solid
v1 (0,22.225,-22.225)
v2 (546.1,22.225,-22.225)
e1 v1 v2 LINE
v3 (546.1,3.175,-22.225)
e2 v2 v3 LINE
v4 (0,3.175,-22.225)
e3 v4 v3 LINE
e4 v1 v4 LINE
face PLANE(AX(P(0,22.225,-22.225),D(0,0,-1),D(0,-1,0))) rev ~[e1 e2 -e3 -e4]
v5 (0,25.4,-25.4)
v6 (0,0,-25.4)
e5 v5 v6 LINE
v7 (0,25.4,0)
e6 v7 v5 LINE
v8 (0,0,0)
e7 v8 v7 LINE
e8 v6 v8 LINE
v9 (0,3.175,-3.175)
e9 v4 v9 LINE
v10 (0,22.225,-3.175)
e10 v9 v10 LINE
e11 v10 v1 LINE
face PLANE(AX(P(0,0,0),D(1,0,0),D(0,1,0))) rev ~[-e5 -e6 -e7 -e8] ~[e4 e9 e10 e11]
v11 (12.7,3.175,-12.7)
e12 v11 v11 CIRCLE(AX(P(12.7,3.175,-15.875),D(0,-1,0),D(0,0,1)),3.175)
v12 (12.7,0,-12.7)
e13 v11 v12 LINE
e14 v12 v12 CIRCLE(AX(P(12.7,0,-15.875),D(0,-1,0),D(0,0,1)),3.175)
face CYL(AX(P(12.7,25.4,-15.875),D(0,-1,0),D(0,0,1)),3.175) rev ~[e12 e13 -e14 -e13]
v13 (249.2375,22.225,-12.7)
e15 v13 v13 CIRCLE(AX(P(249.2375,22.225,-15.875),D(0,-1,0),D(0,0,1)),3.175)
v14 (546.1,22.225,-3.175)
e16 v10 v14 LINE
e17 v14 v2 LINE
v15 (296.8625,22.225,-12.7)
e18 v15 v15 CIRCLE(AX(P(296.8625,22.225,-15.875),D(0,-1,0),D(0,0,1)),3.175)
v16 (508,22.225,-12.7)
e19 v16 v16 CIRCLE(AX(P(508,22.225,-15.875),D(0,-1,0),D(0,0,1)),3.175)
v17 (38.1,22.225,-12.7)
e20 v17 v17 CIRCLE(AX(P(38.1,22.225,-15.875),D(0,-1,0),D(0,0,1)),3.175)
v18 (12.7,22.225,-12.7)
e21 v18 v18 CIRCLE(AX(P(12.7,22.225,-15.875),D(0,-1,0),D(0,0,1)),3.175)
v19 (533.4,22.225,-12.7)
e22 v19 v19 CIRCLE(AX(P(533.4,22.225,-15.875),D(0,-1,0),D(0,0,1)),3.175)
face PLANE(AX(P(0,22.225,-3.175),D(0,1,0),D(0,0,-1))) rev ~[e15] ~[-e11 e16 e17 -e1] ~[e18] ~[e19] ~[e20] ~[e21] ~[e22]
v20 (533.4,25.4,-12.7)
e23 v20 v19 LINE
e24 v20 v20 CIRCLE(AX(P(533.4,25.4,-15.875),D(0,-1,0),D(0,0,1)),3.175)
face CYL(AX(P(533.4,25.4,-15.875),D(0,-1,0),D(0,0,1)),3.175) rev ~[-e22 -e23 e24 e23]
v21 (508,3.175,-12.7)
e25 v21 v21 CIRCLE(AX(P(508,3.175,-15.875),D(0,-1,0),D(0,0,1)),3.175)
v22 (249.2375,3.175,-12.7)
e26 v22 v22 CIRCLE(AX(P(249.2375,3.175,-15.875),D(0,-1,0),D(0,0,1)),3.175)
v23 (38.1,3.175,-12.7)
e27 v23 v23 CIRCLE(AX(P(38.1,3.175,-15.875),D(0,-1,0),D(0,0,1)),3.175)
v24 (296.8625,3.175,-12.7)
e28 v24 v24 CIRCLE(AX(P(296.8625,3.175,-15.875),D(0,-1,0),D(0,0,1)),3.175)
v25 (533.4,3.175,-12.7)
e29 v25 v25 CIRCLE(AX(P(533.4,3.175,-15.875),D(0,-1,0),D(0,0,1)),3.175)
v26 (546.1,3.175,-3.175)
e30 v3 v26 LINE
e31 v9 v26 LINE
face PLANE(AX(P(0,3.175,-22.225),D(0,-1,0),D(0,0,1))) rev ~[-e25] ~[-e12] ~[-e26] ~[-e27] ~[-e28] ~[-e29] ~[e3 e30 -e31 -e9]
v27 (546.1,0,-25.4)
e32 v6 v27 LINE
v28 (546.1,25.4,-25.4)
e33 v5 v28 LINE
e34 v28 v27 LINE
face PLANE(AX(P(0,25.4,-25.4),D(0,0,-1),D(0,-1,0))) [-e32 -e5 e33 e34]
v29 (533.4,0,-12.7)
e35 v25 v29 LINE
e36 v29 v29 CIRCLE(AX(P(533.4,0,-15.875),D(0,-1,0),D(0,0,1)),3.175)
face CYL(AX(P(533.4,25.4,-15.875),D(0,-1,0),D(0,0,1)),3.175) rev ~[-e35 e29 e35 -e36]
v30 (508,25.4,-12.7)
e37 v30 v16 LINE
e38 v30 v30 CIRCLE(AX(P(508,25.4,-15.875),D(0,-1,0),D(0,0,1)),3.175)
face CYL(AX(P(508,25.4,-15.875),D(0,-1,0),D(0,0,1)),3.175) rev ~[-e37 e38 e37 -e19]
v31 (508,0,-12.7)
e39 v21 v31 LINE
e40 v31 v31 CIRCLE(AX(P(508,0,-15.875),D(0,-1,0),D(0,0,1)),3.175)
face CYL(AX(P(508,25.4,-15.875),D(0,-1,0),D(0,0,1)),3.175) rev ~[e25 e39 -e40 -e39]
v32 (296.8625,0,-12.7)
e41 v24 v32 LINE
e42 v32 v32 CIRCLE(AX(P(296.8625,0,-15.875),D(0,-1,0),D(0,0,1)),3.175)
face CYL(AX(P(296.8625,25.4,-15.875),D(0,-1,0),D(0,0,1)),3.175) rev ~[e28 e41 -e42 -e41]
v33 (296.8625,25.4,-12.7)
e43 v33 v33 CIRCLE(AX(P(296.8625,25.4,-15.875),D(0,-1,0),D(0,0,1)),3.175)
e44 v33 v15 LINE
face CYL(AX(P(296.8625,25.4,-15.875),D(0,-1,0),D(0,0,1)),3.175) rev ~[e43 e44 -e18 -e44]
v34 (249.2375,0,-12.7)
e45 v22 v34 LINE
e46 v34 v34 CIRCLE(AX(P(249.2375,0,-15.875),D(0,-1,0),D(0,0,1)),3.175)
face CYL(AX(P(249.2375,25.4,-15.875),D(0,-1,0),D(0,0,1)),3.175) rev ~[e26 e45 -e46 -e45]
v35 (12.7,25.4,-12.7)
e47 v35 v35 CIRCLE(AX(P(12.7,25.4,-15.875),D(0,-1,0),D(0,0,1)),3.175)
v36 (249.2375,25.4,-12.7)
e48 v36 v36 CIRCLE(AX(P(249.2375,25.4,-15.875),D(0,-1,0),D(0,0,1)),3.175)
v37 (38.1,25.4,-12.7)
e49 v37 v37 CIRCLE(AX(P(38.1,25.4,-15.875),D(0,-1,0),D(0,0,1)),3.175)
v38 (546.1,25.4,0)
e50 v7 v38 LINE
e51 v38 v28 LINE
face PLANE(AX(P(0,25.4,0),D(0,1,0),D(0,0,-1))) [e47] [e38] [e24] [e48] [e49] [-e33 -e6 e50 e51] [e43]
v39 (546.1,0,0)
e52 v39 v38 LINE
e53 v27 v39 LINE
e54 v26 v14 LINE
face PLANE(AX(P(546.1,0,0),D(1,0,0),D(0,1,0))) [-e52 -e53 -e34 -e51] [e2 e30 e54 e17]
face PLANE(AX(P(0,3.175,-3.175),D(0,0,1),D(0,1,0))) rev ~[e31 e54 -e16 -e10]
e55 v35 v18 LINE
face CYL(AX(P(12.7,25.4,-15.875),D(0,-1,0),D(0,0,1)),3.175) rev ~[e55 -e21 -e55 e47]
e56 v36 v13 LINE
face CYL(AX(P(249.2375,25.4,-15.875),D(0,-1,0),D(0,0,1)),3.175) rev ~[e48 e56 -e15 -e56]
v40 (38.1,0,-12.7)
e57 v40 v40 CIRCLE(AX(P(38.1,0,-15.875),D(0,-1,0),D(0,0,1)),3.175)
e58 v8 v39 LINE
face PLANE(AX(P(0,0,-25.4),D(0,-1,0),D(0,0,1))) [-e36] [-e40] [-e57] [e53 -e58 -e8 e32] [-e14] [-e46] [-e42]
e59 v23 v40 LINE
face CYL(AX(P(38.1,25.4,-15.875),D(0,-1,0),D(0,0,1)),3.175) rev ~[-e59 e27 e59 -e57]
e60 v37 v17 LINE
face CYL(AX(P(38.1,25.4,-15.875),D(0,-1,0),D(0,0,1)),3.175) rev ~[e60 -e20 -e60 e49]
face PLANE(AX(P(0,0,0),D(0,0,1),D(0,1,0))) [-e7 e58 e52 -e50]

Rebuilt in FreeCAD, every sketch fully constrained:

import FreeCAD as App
import Part
import Sketcher
from FreeCAD import Vector
Q = App.Units.Quantity


def add_polygon(sketch, points):
    """Adds a closed chain of lines whose ends are joined by coincident constraints."""
    first, n = sketch.GeometryCount, len(points)
    for a, b in zip(points, points[1:] + points[:1]):
        sketch.addGeometry(Part.LineSegment(App.Vector(*a, 0), App.Vector(*b, 0)), False)
    for i in range(n):
        sketch.addConstraint(Sketcher.Constraint("Coincident", first + i, 2, first + (i + 1) % n, 1))

doc = App.newDocument("Part")
body = doc.addObject("PartDesign::Body", "Body")

# Sketch on YZ plane
sketch1 = body.newObject("Sketcher::SketchObject", "Sketch")
sketch1.AttachmentSupport = (doc.getObject("YZ_Plane"), [""])
sketch1.MapMode = "FlatFace"
add_polygon(sketch1, [(25, 0), (0, 0), (0, -25), (25, -25)])  # lines 0-3
add_polygon(sketch1, [(3, -22), (3, -3), (22, -3), (22, -22)])  # lines 4-7
sketch1.addConstraint([
    Sketcher.Constraint("Horizontal", 0),
    Sketcher.Constraint("Vertical", 1),
    Sketcher.Constraint("Horizontal", 2),
    Sketcher.Constraint("Vertical", 3),
    Sketcher.Constraint("Vertical", 4),
    Sketcher.Constraint("Horizontal", 5),
    Sketcher.Constraint("Vertical", 6),
    Sketcher.Constraint("Horizontal", 7),
    Sketcher.Constraint("Coincident", 0, 2, -1, 1),
    Sketcher.Constraint("Equal", 2, 1),
    Sketcher.Constraint("Equal", 7, 4),
    Sketcher.Constraint("DistanceX", 0, 2, 0, 1, Q("1 in")),
    Sketcher.Constraint("DistanceX", 5, 1, 5, 2, Q("0.75 in")),
    Sketcher.Constraint("DistanceX", -1, 1, 4, 2, Q("0.125 in")),
    Sketcher.Constraint("DistanceY", 4, 2, -1, 1, Q("0.125 in")),
])
pad1 = body.newObject("PartDesign::Pad", "Pad")
pad1.Profile = sketch1
pad1.Length = Q("21.5 in")

# Sketch on XZ plane
sketch2 = body.newObject("Sketcher::SketchObject", "Sketch001")
sketch2.AttachmentSupport = (doc.getObject("XZ_Plane"), [""])
sketch2.MapMode = "FlatFace"
sketch2.AttachmentOffset = App.Placement(Vector(0, 0, -1 * 25.4), App.Rotation())
sketch2.addGeometry([
    Part.Circle(Vector(12.7, -15.9, 0), Vector(0, 0, 1), 3.2),
    Part.Circle(Vector(533.4, -15.9, 0), Vector(0, 0, 1), 3.2),
], False)
sketch2.addConstraint([
    Sketcher.Constraint("Equal", 0, 1),
    Sketcher.Constraint("Horizontal", 0, 3, 1, 3),
    Sketcher.Constraint("Diameter", 0, Q("0.25 in")),
    Sketcher.Constraint("DistanceX", -1, 1, 1, 3, Q("21 in")),
    Sketcher.Constraint("DistanceX", -1, 1, 0, 3, Q("0.5 in")),
    Sketcher.Constraint("DistanceY", 0, 3, -1, 1, Q("0.625 in")),
])
doc.recompute()
hole = body.newObject("PartDesign::Hole", "Hole")
hole.Profile = sketch2
hole.ThreadType = "None"
hole.Diameter = Q("0.25 in")
hole.DepthType = "ThroughAll"
hole.Reversed = True

# Sketch on XZ plane
sketch3 = body.newObject("Sketcher::SketchObject", "Sketch002")
sketch3.AttachmentSupport = (doc.getObject("XZ_Plane"), [""])
sketch3.MapMode = "FlatFace"
sketch3.AttachmentOffset = App.Placement(Vector(0, 0, -1 * 25.4), App.Rotation())
sketch3.addGeometry([
    Part.Circle(Vector(38.1, -15.9, 0), Vector(0, 0, 1), 3.2),
    Part.Circle(Vector(508, -15.9, 0), Vector(0, 0, 1), 3.2),
    Part.Circle(Vector(296.9, -15.9, 0), Vector(0, 0, 1), 3.2),
    Part.Circle(Vector(249.2, -15.9, 0), Vector(0, 0, 1), 3.2),
], False)
sketch3.addConstraint([
    Sketcher.Constraint("Equal", 0, 1),
    Sketcher.Constraint("Equal", 1, 2),
    Sketcher.Constraint("Equal", 2, 3),
    Sketcher.Constraint("Horizontal", 0, 3, 1, 3),
    Sketcher.Constraint("Horizontal", 1, 3, 2, 3),
    Sketcher.Constraint("Horizontal", 2, 3, 3, 3),
    Sketcher.Constraint("Diameter", 0, Q("0.25 in")),
    Sketcher.Constraint("DistanceX", -1, 1, 1, 3, Q("20 in")),
    Sketcher.Constraint("DistanceX", -1, 1, 0, 3, Q("1.5 in")),
    Sketcher.Constraint("DistanceY", 0, 3, -1, 1, Q("0.625 in")),
    Sketcher.Constraint("DistanceX", -1, 1, 2, 3, Q("11.6875 in")),
    Sketcher.Constraint("DistanceX", -1, 1, 3, 3, Q("9.8125 in")),
])
doc.recompute()
hole2 = body.newObject("PartDesign::Hole", "Hole001")
hole2.Profile = sketch3
hole2.ThreadType = "None"
hole2.Diameter = Q("0.25 in")
hole2.DepthType = "ThroughAll"
hole2.Reversed = True

doc.recompute()
